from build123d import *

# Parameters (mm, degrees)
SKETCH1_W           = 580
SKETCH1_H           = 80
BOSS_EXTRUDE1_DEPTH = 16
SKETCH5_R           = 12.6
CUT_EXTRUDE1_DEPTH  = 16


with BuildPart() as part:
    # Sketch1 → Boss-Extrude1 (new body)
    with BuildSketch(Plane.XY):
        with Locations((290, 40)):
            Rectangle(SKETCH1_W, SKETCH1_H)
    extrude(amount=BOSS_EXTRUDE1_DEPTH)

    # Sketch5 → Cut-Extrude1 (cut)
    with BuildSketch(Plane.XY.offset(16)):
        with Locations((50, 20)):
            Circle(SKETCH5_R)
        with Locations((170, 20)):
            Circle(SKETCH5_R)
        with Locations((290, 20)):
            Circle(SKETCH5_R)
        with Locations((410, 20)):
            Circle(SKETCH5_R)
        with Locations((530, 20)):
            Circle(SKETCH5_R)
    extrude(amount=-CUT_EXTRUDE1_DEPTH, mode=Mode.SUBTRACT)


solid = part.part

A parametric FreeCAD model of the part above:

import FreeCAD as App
import Part
import Sketcher
Q = App.Units.Quantity

doc = App.newDocument("Part")
body = doc.addObject("PartDesign::Body", "Body")

# Sketch on XY plane
sketch1 = body.newObject("Sketcher::SketchObject", "Sketch")
sketch1.AttachmentSupport = (doc.getObject("XY_Plane"), [""])
sketch1.MapMode = "FlatFace"
sketch1.addGeometry([
    Part.LineSegment(App.Vector(0, 80, 0), App.Vector(0, 0, 0)),
    Part.LineSegment(App.Vector(0, 0, 0), App.Vector(580, 0, 0)),
    Part.LineSegment(App.Vector(580, 0, 0), App.Vector(580, 80, 0)),
    Part.LineSegment(App.Vector(580, 80, 0), App.Vector(0, 80, 0)),
], False)
sketch1.addConstraint([
    Sketcher.Constraint("Coincident", 0, 2, 1, 1),
    Sketcher.Constraint("Coincident", 1, 2, 2, 1),
    Sketcher.Constraint("Coincident", 2, 2, 3, 1),
    Sketcher.Constraint("Coincident", 3, 2, 0, 1),
    Sketcher.Constraint("Vertical", 0),
    Sketcher.Constraint("Horizontal", 1),
    Sketcher.Constraint("Vertical", 2),
    Sketcher.Constraint("Horizontal", 3),
    Sketcher.Constraint("Coincident", 0, 2, -1, 1),
    Sketcher.Constraint("DistanceX", 1, 1, 1, 2, Q("580 mm")),
    Sketcher.Constraint("DistanceY", 0, 2, 0, 1, Q("80 mm")),
])
pad1 = body.newObject("PartDesign::Pad", "Pad")
pad1.Profile = sketch1
pad1.Length = 16

# Sketch on XY plane
sketch2 = body.newObject("Sketcher::SketchObject", "Sketch001")
sketch2.AttachmentSupport = (doc.getObject("XY_Plane"), [""])
sketch2.MapMode = "FlatFace"
sketch2.AttachmentOffset = App.Placement(App.Vector(0, 0, 16), App.Rotation())
sketch2.addGeometry([
    Part.Circle(App.Vector(50, 20, 0), App.Vector(0, 0, 1), 13),  # 0
    Part.Circle(App.Vector(170, 20, 0), App.Vector(0, 0, 1), 13),  # 1
    Part.Circle(App.Vector(290, 20, 0), App.Vector(0, 0, 1), 13),  # 2
    Part.Circle(App.Vector(410, 20, 0), App.Vector(0, 0, 1), 13),  # 3
    Part.Circle(App.Vector(530, 20, 0), App.Vector(0, 0, 1), 13),  # 4
], False)
sketch2.addConstraint([
    Sketcher.Constraint("Equal", 0, 1),
    Sketcher.Constraint("Equal", 1, 2),
    Sketcher.Constraint("Equal", 2, 3),
    Sketcher.Constraint("Equal", 3, 4),
    Sketcher.Constraint("Horizontal", 0, 3, 1, 3),
    Sketcher.Constraint("Horizontal", 1, 3, 2, 3),
    Sketcher.Constraint("Horizontal", 2, 3, 3, 3),
    Sketcher.Constraint("Horizontal", 3, 3, 4, 3),
    Sketcher.Constraint("Diameter", 0, Q("25.2 mm")),
    Sketcher.Constraint("DistanceX", -1, 1, 0, 3, Q("50 mm")),
    Sketcher.Constraint("DistanceY", -1, 1, 0, 3, Q("20 mm")),
    Sketcher.Constraint("DistanceX", -1, 1, 1, 3, Q("170 mm")),
    Sketcher.Constraint("DistanceX", -1, 1, 2, 3, Q("290 mm")),
    Sketcher.Constraint("DistanceX", -1, 1, 3, 3, Q("410 mm")),
    Sketcher.Constraint("DistanceX", -1, 1, 4, 3, Q("530 mm")),
])
pocket1 = body.newObject("PartDesign::Pocket", "Pocket")
pocket1.Profile = sketch2
pocket1.Length = 16

doc.recompute()
